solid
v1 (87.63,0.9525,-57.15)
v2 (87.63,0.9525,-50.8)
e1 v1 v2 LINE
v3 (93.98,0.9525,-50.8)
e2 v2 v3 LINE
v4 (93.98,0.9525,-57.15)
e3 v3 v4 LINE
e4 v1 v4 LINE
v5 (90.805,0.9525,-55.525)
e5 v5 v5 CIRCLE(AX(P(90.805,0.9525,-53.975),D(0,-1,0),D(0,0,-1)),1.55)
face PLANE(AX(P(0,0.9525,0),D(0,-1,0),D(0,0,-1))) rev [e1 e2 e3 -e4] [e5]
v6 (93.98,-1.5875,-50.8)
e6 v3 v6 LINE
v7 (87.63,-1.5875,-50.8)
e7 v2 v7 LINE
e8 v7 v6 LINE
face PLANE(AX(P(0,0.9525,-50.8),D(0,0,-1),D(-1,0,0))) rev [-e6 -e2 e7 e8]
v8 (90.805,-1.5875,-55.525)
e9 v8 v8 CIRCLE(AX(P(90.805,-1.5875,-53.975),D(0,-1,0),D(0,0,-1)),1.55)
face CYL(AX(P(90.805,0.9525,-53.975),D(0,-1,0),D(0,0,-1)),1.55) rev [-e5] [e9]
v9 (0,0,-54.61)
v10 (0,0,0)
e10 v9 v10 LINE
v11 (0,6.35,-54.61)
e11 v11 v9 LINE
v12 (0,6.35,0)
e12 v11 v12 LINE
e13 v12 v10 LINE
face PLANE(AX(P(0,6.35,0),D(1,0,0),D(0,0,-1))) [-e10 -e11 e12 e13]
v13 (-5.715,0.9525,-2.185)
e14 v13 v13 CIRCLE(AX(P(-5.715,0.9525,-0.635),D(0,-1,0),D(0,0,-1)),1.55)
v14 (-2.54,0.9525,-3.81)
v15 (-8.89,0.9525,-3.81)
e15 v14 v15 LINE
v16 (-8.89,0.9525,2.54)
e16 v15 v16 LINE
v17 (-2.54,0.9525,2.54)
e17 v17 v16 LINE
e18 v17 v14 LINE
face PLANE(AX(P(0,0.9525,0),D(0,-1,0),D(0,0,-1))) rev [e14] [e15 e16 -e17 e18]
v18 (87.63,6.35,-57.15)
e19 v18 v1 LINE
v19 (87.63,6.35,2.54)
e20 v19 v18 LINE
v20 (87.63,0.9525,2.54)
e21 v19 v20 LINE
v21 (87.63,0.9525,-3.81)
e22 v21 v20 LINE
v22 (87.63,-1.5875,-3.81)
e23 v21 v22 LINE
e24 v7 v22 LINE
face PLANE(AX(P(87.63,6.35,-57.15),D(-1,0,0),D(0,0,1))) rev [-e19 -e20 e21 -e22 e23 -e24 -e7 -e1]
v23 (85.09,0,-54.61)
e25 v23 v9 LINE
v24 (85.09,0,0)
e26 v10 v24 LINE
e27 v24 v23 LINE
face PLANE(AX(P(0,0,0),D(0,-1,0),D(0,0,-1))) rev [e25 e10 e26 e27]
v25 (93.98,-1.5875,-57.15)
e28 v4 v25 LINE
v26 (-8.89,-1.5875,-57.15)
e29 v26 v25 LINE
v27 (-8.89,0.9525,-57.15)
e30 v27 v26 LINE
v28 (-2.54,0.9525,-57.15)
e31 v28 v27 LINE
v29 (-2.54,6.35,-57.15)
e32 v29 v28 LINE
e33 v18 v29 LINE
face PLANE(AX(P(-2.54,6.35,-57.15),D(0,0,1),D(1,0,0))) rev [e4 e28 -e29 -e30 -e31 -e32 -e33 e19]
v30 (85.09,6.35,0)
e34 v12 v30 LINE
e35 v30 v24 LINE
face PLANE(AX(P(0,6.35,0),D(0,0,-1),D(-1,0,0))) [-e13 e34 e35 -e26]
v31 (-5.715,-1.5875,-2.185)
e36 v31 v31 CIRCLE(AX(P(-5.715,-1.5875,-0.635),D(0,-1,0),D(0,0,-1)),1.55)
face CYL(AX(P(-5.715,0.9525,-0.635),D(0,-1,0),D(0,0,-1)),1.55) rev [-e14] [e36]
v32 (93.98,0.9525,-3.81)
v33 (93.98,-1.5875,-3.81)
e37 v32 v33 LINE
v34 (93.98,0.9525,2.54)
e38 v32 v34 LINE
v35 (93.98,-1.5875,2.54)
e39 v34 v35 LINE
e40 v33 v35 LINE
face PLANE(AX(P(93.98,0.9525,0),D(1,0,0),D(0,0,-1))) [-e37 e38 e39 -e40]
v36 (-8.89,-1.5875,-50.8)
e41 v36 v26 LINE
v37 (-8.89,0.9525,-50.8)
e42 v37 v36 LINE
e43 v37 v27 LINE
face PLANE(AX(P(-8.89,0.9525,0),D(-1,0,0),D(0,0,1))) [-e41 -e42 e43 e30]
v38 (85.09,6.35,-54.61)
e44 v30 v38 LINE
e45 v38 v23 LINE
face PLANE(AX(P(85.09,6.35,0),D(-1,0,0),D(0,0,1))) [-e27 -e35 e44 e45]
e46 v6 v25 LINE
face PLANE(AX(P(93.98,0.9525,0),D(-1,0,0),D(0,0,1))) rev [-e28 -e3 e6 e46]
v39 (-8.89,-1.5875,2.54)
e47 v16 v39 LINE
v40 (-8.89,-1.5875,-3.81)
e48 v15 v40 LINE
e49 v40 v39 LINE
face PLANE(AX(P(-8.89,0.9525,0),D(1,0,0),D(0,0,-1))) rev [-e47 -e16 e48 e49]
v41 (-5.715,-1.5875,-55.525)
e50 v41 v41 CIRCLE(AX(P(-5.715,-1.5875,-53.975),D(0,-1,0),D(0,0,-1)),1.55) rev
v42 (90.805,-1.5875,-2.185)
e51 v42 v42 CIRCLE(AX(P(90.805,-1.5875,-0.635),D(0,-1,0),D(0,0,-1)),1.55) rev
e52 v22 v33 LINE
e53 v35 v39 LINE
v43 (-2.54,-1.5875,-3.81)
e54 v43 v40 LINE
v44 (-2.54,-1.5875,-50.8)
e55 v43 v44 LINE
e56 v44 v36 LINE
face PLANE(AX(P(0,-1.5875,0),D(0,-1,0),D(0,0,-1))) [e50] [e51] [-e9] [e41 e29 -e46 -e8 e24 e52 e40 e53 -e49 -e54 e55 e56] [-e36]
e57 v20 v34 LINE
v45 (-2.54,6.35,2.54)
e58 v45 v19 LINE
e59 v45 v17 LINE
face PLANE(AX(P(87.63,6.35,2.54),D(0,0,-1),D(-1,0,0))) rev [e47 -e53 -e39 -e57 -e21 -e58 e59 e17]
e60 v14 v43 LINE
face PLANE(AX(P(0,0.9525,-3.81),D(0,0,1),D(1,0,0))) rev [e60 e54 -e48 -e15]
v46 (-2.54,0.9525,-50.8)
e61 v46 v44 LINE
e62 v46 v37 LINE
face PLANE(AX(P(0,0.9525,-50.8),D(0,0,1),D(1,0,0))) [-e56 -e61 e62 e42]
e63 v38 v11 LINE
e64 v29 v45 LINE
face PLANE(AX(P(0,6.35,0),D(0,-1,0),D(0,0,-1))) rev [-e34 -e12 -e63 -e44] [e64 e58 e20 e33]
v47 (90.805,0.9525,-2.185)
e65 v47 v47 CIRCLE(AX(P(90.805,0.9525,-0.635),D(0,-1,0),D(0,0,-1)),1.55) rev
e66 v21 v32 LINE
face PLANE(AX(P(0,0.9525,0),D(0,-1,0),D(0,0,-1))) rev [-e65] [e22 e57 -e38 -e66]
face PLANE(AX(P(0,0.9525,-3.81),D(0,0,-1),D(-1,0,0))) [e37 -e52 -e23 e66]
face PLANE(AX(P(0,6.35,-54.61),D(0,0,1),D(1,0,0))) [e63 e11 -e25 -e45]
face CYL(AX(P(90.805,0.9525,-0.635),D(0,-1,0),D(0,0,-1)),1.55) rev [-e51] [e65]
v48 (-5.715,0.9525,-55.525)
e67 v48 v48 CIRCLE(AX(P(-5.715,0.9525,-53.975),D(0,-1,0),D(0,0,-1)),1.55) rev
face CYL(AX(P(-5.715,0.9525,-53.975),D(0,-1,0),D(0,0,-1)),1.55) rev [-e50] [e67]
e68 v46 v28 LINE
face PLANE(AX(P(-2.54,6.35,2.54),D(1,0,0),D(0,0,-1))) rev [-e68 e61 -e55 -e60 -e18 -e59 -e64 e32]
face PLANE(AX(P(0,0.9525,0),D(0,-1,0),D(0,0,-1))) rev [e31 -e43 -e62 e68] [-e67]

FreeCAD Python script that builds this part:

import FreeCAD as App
import Part
import Sketcher

V = App.Vector
Q = App.Units.Quantity

doc = App.newDocument("Part")
params = doc.addObject("Spreadsheet::Sheet", "Params")
for row, (alias, value) in enumerate([
    ("sketch1_width", "3.55 in"),
    ("sketch1_width2", "3.35 in"),
    ("sketch1_height", "2.35 in"),
    ("sketch1_height2", "2.15 in"),
    ("pad1_length", "0.25 in"),
    ("sketch2_width", "3.55 in"),
    ("sketch2_height", "2.35 in"),
    ("pad2_length", "0.0625 in"),
    ("sketch3_width", "0.25 in"),
    ("pad3_length", "0.1 in"),
], start=1):
    params.set(f"A{row}", alias)
    params.set(f"B{row}", "=" + value)
    params.setAlias(f"B{row}", alias)

body = doc.addObject("PartDesign::Body", "Body")

# Sketch on XZ plane
sketch1 = body.newObject("Sketcher::SketchObject", "Sketch")
sketch1.AttachmentSupport = (doc.getObject("XZ_Plane"), [""])
sketch1.MapMode = "FlatFace"
sketch1.addGeometry(Part.LineSegment(V(-2.54, -57.15, 0), V(-2.54, 2.54, 0)), False)
sketch1.addGeometry(Part.LineSegment(V(-2.54, 2.54, 0), V(87.63, 2.54, 0)), False)
sketch1.addGeometry(Part.LineSegment(V(87.63, 2.54, 0), V(87.63, -57.15, 0)), False)
sketch1.addGeometry(Part.LineSegment(V(87.63, -57.15, 0), V(-2.54, -57.15, 0)), False)
sketch1.addGeometry(Part.LineSegment(V(85.09, 0, 0), V(0, 0, 0)), False)
sketch1.addGeometry(Part.LineSegment(V(0, 0, 0), V(0, -54.61, 0)), False)
sketch1.addGeometry(Part.LineSegment(V(0, -54.61, 0), V(85.09, -54.61, 0)), False)
sketch1.addGeometry(Part.LineSegment(V(85.09, -54.61, 0), V(85.09, 0, 0)), False)
sketch1.addConstraint(Sketcher.Constraint("Coincident", 0, 2, 1, 1))
sketch1.addConstraint(Sketcher.Constraint("Coincident", 1, 2, 2, 1))
sketch1.addConstraint(Sketcher.Constraint("Coincident", 2, 2, 3, 1))
sketch1.addConstraint(Sketcher.Constraint("Coincident", 3, 2, 0, 1))
sketch1.addConstraint(Sketcher.Constraint("Coincident", 4, 2, 5, 1))
sketch1.addConstraint(Sketcher.Constraint("Coincident", 5, 2, 6, 1))
sketch1.addConstraint(Sketcher.Constraint("Coincident", 6, 2, 7, 1))
sketch1.addConstraint(Sketcher.Constraint("Coincident", 7, 2, 4, 1))
sketch1.addConstraint(Sketcher.Constraint("Vertical", 0))
sketch1.addConstraint(Sketcher.Constraint("Horizontal", 1))
sketch1.addConstraint(Sketcher.Constraint("Vertical", 2))
sketch1.addConstraint(Sketcher.Constraint("Horizontal", 3))
sketch1.addConstraint(Sketcher.Constraint("Horizontal", 4))
sketch1.addConstraint(Sketcher.Constraint("Vertical", 5))
sketch1.addConstraint(Sketcher.Constraint("Horizontal", 6))
sketch1.addConstraint(Sketcher.Constraint("Vertical", 7))
sketch1.addConstraint(Sketcher.Constraint("Coincident", 4, 2, -1, 1))
sketch1.addConstraint(Sketcher.Constraint("DistanceX", 1, 1, 1, 2, Q("3.55 in")))
sketch1.addConstraint(Sketcher.Constraint("DistanceX", 4, 2, 4, 1, Q("3.35 in")))
sketch1.addConstraint(Sketcher.Constraint("DistanceY", 0, 1, 0, 2, Q("2.35 in")))
sketch1.addConstraint(Sketcher.Constraint("DistanceY", 5, 2, 5, 1, Q("2.15 in")))
sketch1.addConstraint(Sketcher.Constraint("DistanceX", 0, 2, -1, 1, Q("0.1 in")))
sketch1.addConstraint(Sketcher.Constraint("DistanceY", -1, 1, 0, 2, Q("0.1 in")))
sketch1.setExpression("Constraints[17]", "Params.sketch1_width")
sketch1.setExpression("Constraints[18]", "Params.sketch1_width2")
sketch1.setExpression("Constraints[19]", "Params.sketch1_height")
sketch1.setExpression("Constraints[20]", "Params.sketch1_height2")
pad1 = body.newObject("PartDesign::Pad", "Pad")
pad1.Profile = sketch1
pad1.setExpression("Length", "Params.pad1_length")
pad1.Reversed = True

# Sketch on XZ plane
sketch2 = body.newObject("Sketcher::SketchObject", "Sketch001")
sketch2.AttachmentSupport = (doc.getObject("XZ_Plane"), [""])
sketch2.MapMode = "FlatFace"
sketch2.addGeometry(Part.LineSegment(V(-2.54, 2.54, 0), V(-2.54, -57.15, 0)), False)
sketch2.addGeometry(Part.LineSegment(V(-2.54, -57.15, 0), V(87.63, -57.15, 0)), False)
sketch2.addGeometry(Part.LineSegment(V(87.63, -57.15, 0), V(87.63, 2.54, 0)), False)
sketch2.addGeometry(Part.LineSegment(V(87.63, 2.54, 0), V(-2.54, 2.54, 0)), False)
sketch2.addConstraint(Sketcher.Constraint("Coincident", 0, 2, 1, 1))
sketch2.addConstraint(Sketcher.Constraint("Coincident", 1, 2, 2, 1))
sketch2.addConstraint(Sketcher.Constraint("Coincident", 2, 2, 3, 1))
sketch2.addConstraint(Sketcher.Constraint("Coincident", 3, 2, 0, 1))
sketch2.addConstraint(Sketcher.Constraint("Vertical", 0))
sketch2.addConstraint(Sketcher.Constraint("Horizontal", 1))
sketch2.addConstraint(Sketcher.Constraint("Vertical", 2))
sketch2.addConstraint(Sketcher.Constraint("Horizontal", 3))
sketch2.addConstraint(Sketcher.Constraint("DistanceX", 1, 1, 1, 2, Q("3.55 in")))
sketch2.addConstraint(Sketcher.Constraint("DistanceY", 0, 2, 0, 1, Q("2.35 in")))
sketch2.addConstraint(Sketcher.Constraint("DistanceX", 0, 2, -1, 1, Q("0.1 in")))
sketch2.addConstraint(Sketcher.Constraint("DistanceY", -1, 1, 2, 2, Q("0.1 in")))
sketch2.setExpression("Constraints[8]", "Params.sketch2_width")
sketch2.setExpression("Constraints[9]", "Params.sketch2_height")
pad2 = body.newObject("PartDesign::Pad", "Pad001")
pad2.Profile = sketch2
pad2.setExpression("Length", "Params.pad2_length")

# Sketch on XZ plane
sketch3 = body.newObject("Sketcher::SketchObject", "Sketch002")
sketch3.AttachmentSupport = (doc.getObject("XZ_Plane"), [""])
sketch3.MapMode = "FlatFace"
sketch3.AttachmentOffset = App.Placement(V(0, 0, 0.0625 * 25.4), App.Rotation())
sketch3.addGeometry(Part.LineSegment(V(87.63, 2.54, 0), V(87.63, -3.81, 0)), False)
sketch3.addGeometry(Part.LineSegment(V(87.63, -3.81, 0), V(93.98, -3.81, 0)), False)
sketch3.addGeometry(Part.LineSegment(V(93.98, -3.81, 0), V(93.98, 2.54, 0)), False)
sketch3.addGeometry(Part.LineSegment(V(93.98, 2.54, 0), V(87.63, 2.54, 0)), False)
sketch3.addGeometry(Part.Circle(V(90.805, -0.635, 0), V(0, 0, 1), 1.55), False)
sketch3.addGeometry(Part.LineSegment(V(-8.89, 2.54, 0), V(-8.89, -3.81, 0)), False)
sketch3.addGeometry(Part.LineSegment(V(-8.89, -3.81, 0), V(-2.54, -3.81, 0)), False)
sketch3.addGeometry(Part.LineSegment(V(-2.54, -3.81, 0), V(-2.54, 2.54, 0)), False)
sketch3.addGeometry(Part.LineSegment(V(-2.54, 2.54, 0), V(-8.89, 2.54, 0)), False)
sketch3.addGeometry(Part.Circle(V(-5.715, -0.635, 0), V(0, 0, 1), 1.55), False)
sketch3.addGeometry(Part.LineSegment(V(-8.89, -50.8, 0), V(-8.89, -57.15, 0)), False)
sketch3.addGeometry(Part.LineSegment(V(-8.89, -57.15, 0), V(-2.54, -57.15, 0)), False)
sketch3.addGeometry(Part.LineSegment(V(-2.54, -57.15, 0), V(-2.54, -50.8, 0)), False)
sketch3.addGeometry(Part.LineSegment(V(-2.54, -50.8, 0), V(-8.89, -50.8, 0)), False)
sketch3.addGeometry(Part.Circle(V(-5.715, -53.975, 0), V(0, 0, 1), 1.55), False)
sketch3.addGeometry(Part.LineSegment(V(87.63, -50.8, 0), V(87.63, -57.15, 0)), False)
sketch3.addGeometry(Part.LineSegment(V(87.63, -57.15, 0), V(93.98, -57.15, 0)), False)
sketch3.addGeometry(Part.LineSegment(V(93.98, -57.15, 0), V(93.98, -50.8, 0)), False)
sketch3.addGeometry(Part.LineSegment(V(93.98, -50.8, 0), V(87.63, -50.8, 0)), False)
sketch3.addGeometry(Part.Circle(V(90.805, -53.975, 0), V(0, 0, 1), 1.55), False)
sketch3.addConstraint(Sketcher.Constraint("Coincident", 0, 2, 1, 1))
sketch3.addConstraint(Sketcher.Constraint("Coincident", 1, 2, 2, 1))
sketch3.addConstraint(Sketcher.Constraint("Coincident", 2, 2, 3, 1))
sketch3.addConstraint(Sketcher.Constraint("Coincident", 3, 2, 0, 1))
sketch3.addConstraint(Sketcher.Constraint("Coincident", 5, 2, 6, 1))
sketch3.addConstraint(Sketcher.Constraint("Coincident", 6, 2, 7, 1))
sketch3.addConstraint(Sketcher.Constraint("Coincident", 7, 2, 8, 1))
sketch3.addConstraint(Sketcher.Constraint("Coincident", 8, 2, 5, 1))
sketch3.addConstraint(Sketcher.Constraint("Coincident", 10, 2, 11, 1))
sketch3.addConstraint(Sketcher.Constraint("Coincident", 11, 2, 12, 1))
sketch3.addConstraint(Sketcher.Constraint("Coincident", 12, 2, 13, 1))
sketch3.addConstraint(Sketcher.Constraint("Coincident", 13, 2, 10, 1))
sketch3.addConstraint(Sketcher.Constraint("Coincident", 15, 2, 16, 1))
sketch3.addConstraint(Sketcher.Constraint("Coincident", 16, 2, 17, 1))
sketch3.addConstraint(Sketcher.Constraint("Coincident", 17, 2, 18, 1))
sketch3.addConstraint(Sketcher.Constraint("Coincident", 18, 2, 15, 1))
sketch3.addConstraint(Sketcher.Constraint("Vertical", 0))
sketch3.addConstraint(Sketcher.Constraint("Horizontal", 1))
sketch3.addConstraint(Sketcher.Constraint("Vertical", 2))
sketch3.addConstraint(Sketcher.Constraint("Horizontal", 3))
sketch3.addConstraint(Sketcher.Constraint("Vertical", 5))
sketch3.addConstraint(Sketcher.Constraint("Horizontal", 6))
sketch3.addConstraint(Sketcher.Constraint("Vertical", 7))
sketch3.addConstraint(Sketcher.Constraint("Horizontal", 8))
sketch3.addConstraint(Sketcher.Constraint("Vertical", 10))
sketch3.addConstraint(Sketcher.Constraint("Horizontal", 11))
sketch3.addConstraint(Sketcher.Constraint("Vertical", 12))
sketch3.addConstraint(Sketcher.Constraint("Horizontal", 13))
sketch3.addConstraint(Sketcher.Constraint("Vertical", 15))
sketch3.addConstraint(Sketcher.Constraint("Horizontal", 16))
sketch3.addConstraint(Sketcher.Constraint("Vertical", 17))
sketch3.addConstraint(Sketcher.Constraint("Horizontal", 18))
sketch3.addConstraint(Sketcher.Constraint("Equal", 4, 9))
sketch3.addConstraint(Sketcher.Constraint("Equal", 9, 14))
sketch3.addConstraint(Sketcher.Constraint("Equal", 14, 19))
sketch3.addConstraint(Sketcher.Constraint("Horizontal", 4, 3, 9, 3))
sketch3.addConstraint(Sketcher.Constraint("Horizontal", 14, 3, 19, 3))
sketch3.addConstraint(Sketcher.Constraint("Horizontal", 1, 2, 5, 2))
sketch3.addConstraint(Sketcher.Constraint("Horizontal", 3, 2, 7, 2))
sketch3.addConstraint(Sketcher.Constraint("Horizontal", 11, 2, 15, 2))
sketch3.addConstraint(Sketcher.Constraint("Horizontal", 13, 2, 17, 2))
sketch3.addConstraint(Sketcher.Constraint("Vertical", 9, 3, 14, 3))
sketch3.addConstraint(Sketcher.Constraint("Vertical", 4, 3, 19, 3))
sketch3.addConstraint(Sketcher.Constraint("Vertical", 8, 2, 10, 2))
sketch3.addConstraint(Sketcher.Constraint("Vertical", 7, 2, 11, 2))
sketch3.addConstraint(Sketcher.Constraint("Vertical", 3, 2, 15, 2))
sketch3.addConstraint(Sketcher.Constraint("Vertical", 2, 2, 16, 2))
sketch3.addConstraint(Sketcher.Constraint("Equal", 3, 6))
sketch3.addConstraint(Sketcher.Constraint("Equal", 18, 0))
sketch3.addConstraint(Sketcher.Constraint("Equal", 7, 10))
sketch3.addConstraint(Sketcher.Constraint("DistanceY", 12, 2, -1, 1, Q("2 in")))
sketch3.addConstraint(Sketcher.Constraint("DistanceX", 1, 1, 1, 2, Q("0.25 in")))
sketch3.addConstraint(Sketcher.Constraint("DistanceX", -1, 1, 1, 2, Q("3.7 in")))
sketch3.addConstraint(Sketcher.Constraint("DistanceY", -1, 1, 2, 2, Q("0.1 in")))
sketch3.addConstraint(Sketcher.Constraint("DistanceX", 6, 2, -1, 1, Q("0.1 in")))
sketch3.addConstraint(Sketcher.Constraint("DistanceX", 9, 3, 4, 3, Q("3.8 in")))
sketch3.addConstraint(Sketcher.Constraint("DistanceY", 14, 3, 9, 3, Q("2.1 in")))
sketch3.addConstraint(Sketcher.Constraint("Diameter", 4, 3.1))
sketch3.addConstraint(Sketcher.Constraint("DistanceX", -1, 1, 4, 3, Q("3.575 in")))
sketch3.addConstraint(Sketcher.Constraint("DistanceY", 4, 3, -1, 1, Q("0.025 in")))
sketch3.setExpression("Constraints[51]", "Params.sketch3_width")
pad3 = body.newObject("PartDesign::Pad", "Pad002")
pad3.Profile = sketch3
pad3.setExpression("Length", "Params.pad3_length")
pad3.Reversed = True

doc.recompute()
